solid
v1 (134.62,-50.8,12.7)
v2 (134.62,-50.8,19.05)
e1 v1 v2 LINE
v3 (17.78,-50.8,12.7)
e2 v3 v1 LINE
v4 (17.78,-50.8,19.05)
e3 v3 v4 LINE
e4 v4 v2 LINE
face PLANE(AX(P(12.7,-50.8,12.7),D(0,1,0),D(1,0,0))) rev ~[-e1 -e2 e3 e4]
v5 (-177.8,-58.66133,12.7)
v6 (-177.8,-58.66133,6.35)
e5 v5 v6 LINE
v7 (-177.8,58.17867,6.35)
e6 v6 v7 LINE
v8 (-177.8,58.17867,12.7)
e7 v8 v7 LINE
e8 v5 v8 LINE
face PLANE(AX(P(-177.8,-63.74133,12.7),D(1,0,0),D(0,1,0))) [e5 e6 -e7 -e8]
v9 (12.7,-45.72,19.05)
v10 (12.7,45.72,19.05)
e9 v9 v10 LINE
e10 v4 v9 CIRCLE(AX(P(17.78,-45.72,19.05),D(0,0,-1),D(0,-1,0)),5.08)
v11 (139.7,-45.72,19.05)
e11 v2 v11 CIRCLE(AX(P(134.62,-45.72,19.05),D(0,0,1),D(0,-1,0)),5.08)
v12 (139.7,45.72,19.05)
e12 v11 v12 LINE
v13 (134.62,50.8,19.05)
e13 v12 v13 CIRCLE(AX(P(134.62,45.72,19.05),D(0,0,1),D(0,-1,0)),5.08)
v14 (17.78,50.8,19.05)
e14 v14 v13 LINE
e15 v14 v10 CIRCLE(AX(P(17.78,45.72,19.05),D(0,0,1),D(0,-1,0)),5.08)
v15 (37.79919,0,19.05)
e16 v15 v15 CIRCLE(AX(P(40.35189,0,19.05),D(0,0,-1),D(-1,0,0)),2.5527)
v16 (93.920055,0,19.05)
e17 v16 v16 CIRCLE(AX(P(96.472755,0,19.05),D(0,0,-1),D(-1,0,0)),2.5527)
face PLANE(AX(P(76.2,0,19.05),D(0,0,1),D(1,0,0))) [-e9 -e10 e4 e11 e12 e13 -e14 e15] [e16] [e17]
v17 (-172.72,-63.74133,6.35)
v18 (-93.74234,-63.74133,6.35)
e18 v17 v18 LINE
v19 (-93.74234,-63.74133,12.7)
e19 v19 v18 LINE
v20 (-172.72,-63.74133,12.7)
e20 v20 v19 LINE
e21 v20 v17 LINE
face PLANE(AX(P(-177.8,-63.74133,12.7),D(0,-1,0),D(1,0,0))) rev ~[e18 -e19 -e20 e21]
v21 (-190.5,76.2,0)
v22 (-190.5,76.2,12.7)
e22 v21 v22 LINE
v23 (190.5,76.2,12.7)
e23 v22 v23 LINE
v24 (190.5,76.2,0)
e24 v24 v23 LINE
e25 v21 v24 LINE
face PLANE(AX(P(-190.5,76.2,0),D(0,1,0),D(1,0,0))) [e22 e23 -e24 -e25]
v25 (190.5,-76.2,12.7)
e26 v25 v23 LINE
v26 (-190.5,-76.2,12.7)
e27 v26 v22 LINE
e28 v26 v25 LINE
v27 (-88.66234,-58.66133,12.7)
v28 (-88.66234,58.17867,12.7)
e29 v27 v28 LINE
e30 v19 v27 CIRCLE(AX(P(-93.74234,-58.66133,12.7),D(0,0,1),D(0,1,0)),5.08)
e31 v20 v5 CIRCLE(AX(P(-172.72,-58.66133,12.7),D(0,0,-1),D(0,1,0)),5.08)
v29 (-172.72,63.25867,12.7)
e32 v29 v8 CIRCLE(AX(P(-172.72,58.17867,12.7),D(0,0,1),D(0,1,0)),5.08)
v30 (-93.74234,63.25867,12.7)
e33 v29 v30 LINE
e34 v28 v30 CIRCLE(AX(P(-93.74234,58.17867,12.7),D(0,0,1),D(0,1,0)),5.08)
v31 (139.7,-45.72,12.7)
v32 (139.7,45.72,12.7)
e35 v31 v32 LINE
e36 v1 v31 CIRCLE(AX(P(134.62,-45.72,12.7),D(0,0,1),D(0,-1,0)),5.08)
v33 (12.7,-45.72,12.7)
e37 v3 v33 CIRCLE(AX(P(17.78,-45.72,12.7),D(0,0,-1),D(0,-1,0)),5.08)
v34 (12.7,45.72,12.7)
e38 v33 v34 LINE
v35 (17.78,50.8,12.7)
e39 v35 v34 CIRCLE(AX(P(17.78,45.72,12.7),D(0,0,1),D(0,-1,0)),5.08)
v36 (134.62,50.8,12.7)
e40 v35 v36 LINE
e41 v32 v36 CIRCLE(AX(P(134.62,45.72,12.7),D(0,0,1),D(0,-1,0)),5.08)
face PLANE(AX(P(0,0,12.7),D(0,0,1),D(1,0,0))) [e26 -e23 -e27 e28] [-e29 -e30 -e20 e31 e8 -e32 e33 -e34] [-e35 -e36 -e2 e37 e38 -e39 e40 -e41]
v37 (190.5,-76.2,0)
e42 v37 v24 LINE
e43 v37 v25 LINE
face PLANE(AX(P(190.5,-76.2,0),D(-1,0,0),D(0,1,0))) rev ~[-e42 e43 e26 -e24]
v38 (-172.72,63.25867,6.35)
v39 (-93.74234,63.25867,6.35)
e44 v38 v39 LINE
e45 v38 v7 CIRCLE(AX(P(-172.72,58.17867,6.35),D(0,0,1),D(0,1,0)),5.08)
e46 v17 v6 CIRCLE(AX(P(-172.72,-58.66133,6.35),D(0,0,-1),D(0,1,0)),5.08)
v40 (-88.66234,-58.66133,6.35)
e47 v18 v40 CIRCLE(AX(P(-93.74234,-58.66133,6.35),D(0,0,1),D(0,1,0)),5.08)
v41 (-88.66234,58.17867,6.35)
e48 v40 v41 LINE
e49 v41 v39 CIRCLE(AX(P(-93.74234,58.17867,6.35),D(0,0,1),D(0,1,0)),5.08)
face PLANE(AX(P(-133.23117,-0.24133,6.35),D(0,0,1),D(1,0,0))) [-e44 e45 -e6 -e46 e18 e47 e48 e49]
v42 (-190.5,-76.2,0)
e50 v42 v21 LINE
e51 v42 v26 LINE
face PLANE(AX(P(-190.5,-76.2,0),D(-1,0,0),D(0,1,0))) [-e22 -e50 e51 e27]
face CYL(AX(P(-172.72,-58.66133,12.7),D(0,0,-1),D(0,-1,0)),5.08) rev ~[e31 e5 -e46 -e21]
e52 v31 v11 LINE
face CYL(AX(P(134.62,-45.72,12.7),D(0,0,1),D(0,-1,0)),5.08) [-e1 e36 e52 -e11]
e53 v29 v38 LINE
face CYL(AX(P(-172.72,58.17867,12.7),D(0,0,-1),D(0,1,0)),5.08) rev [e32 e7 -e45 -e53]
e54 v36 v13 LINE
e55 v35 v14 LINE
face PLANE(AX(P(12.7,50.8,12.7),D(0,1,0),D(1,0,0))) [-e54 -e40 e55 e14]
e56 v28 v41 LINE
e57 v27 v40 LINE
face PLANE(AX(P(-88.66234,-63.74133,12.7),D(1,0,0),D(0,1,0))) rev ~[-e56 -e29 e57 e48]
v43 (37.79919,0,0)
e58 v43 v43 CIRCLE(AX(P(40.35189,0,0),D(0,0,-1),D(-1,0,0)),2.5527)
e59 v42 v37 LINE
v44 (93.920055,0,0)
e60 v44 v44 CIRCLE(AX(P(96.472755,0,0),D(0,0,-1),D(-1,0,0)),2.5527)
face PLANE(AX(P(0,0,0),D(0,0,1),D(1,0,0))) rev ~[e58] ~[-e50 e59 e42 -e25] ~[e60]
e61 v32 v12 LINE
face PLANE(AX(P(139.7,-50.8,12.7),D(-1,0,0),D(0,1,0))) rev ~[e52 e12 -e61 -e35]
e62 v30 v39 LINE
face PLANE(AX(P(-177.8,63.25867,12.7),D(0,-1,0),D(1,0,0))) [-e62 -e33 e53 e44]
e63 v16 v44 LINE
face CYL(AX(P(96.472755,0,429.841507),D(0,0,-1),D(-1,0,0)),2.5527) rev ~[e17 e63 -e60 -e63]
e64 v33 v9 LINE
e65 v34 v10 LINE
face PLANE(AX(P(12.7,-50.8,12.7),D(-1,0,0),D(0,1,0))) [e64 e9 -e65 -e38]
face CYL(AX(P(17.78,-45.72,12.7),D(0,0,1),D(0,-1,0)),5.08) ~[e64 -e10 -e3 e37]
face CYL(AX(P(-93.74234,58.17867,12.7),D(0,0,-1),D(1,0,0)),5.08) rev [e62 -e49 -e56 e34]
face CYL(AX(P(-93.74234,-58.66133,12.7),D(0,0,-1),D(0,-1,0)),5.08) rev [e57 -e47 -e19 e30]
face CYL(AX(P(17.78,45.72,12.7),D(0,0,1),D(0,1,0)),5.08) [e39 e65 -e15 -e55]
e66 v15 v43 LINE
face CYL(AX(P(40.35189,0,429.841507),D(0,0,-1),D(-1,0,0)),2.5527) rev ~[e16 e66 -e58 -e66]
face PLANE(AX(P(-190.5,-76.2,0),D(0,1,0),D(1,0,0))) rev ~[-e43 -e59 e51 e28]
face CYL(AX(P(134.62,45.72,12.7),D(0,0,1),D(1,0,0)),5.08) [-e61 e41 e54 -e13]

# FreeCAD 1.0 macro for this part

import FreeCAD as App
import Part
import Sketcher

V = App.Vector
Q = App.Units.Quantity


def edges_at(feature, points):
    """Names of the edges that pass closest to the given points."""
    edges = feature.Shape.Edges
    near = lambda p: min(range(len(edges)), key=lambda i: edges[i].distToShape(Part.Vertex(*p))[0])
    return sorted({f"Edge{near(p) + 1}" for p in points})

doc = App.newDocument("Part")
body = doc.addObject("PartDesign::Body", "Body")

# Sketch on XY plane
sketch1 = body.newObject("Sketcher::SketchObject", "Sketch")
sketch1.AttachmentSupport = (doc.getObject("XY_Plane"), [""])
sketch1.MapMode = "FlatFace"
sketch1.addGeometry(Part.LineSegment(V(-190, 76, 0), V(-190, -76, 0)), False)
sketch1.addGeometry(Part.LineSegment(V(-190, -76, 0), V(190, -76, 0)), False)
sketch1.addGeometry(Part.LineSegment(V(190, -76, 0), V(190, 76, 0)), False)
sketch1.addGeometry(Part.LineSegment(V(190, 76, 0), V(-190, 76, 0)), False)
sketch1.addConstraint(Sketcher.Constraint("Coincident", 0, 2, 1, 1))
sketch1.addConstraint(Sketcher.Constraint("Coincident", 1, 2, 2, 1))
sketch1.addConstraint(Sketcher.Constraint("Coincident", 2, 2, 3, 1))
sketch1.addConstraint(Sketcher.Constraint("Coincident", 3, 2, 0, 1))
sketch1.addConstraint(Sketcher.Constraint("Vertical", 0))
sketch1.addConstraint(Sketcher.Constraint("Horizontal", 1))
sketch1.addConstraint(Sketcher.Constraint("Vertical", 2))
sketch1.addConstraint(Sketcher.Constraint("Horizontal", 3))
sketch1.addConstraint(Sketcher.Constraint("Symmetric", 0, 2, 2, 2, -1, 1))
sketch1.addConstraint(Sketcher.Constraint("DistanceX", 1, 1, 1, 2, Q("15 in")))
sketch1.addConstraint(Sketcher.Constraint("DistanceY", 0, 2, 0, 1, Q("6 in")))
pad1 = body.newObject("PartDesign::Pad", "Pad")
pad1.Profile = sketch1
pad1.Length = Q("0.5 in")

# Sketch on XY plane
sketch2 = body.newObject("Sketcher::SketchObject", "Sketch001")
sketch2.AttachmentSupport = (doc.getObject("XY_Plane"), [""])
sketch2.MapMode = "FlatFace"
sketch2.AttachmentOffset = App.Placement(V(0, 0, 0.5 * 25.4), App.Rotation())
sketch2.addGeometry(Part.LineSegment(V(-178, 63, 0), V(-178, -64, 0)), False)
sketch2.addGeometry(Part.LineSegment(V(-178, -64, 0), V(-89, -64, 0)), False)
sketch2.addGeometry(Part.LineSegment(V(-89, -64, 0), V(-89, 63, 0)), False)
sketch2.addGeometry(Part.LineSegment(V(-89, 63, 0), V(-178, 63, 0)), False)
sketch2.addConstraint(Sketcher.Constraint("Coincident", 0, 2, 1, 1))
sketch2.addConstraint(Sketcher.Constraint("Coincident", 1, 2, 2, 1))
sketch2.addConstraint(Sketcher.Constraint("Coincident", 2, 2, 3, 1))
sketch2.addConstraint(Sketcher.Constraint("Coincident", 3, 2, 0, 1))
sketch2.addConstraint(Sketcher.Constraint("Vertical", 0))
sketch2.addConstraint(Sketcher.Constraint("Horizontal", 1))
sketch2.addConstraint(Sketcher.Constraint("Vertical", 2))
sketch2.addConstraint(Sketcher.Constraint("Horizontal", 3))
sketch2.addConstraint(Sketcher.Constraint("DistanceY", 0, 2, 0, 1, Q("5 in")))
sketch2.addConstraint(Sketcher.Constraint("DistanceX", 0, 2, -1, 1, Q("7 in")))
sketch2.addConstraint(Sketcher.Constraint("DistanceX", 1, 1, 1, 2, Q("89.13766 mm")))
sketch2.addConstraint(Sketcher.Constraint("DistanceY", 0, 2, -1, 1, Q("63.74133 mm")))
pocket1 = body.newObject("PartDesign::Pocket", "Pocket")
pocket1.Profile = sketch2
pocket1.Length = Q("0.25 in")
doc.recompute()

fillet = body.newObject("PartDesign::Fillet", "Fillet")
fillet.Base = (pocket1, edges_at(pocket1, [
    (-177.8, 63.259, 9.525),
    (-177.8, -63.741, 9.525),
    (-88.662, 63.259, 9.525),
    (-88.662, -63.741, 9.525),
]))
fillet.Radius = Q("0.2 in")

# Sketch on XY plane
sketch3 = body.newObject("Sketcher::SketchObject", "Sketch002")
sketch3.AttachmentSupport = (doc.getObject("XY_Plane"), [""])
sketch3.MapMode = "FlatFace"
sketch3.AttachmentOffset = App.Placement(V(0, 0, 0.5 * 25.4), App.Rotation())
sketch3.addGeometry(Part.LineSegment(V(13, 51, 0), V(13, -51, 0)), False)
sketch3.addGeometry(Part.LineSegment(V(13, -51, 0), V(140, -51, 0)), False)
sketch3.addGeometry(Part.LineSegment(V(140, -51, 0), V(140, 51, 0)), False)
sketch3.addGeometry(Part.LineSegment(V(140, 51, 0), V(13, 51, 0)), False)
sketch3.addConstraint(Sketcher.Constraint("Coincident", 0, 2, 1, 1))
sketch3.addConstraint(Sketcher.Constraint("Coincident", 1, 2, 2, 1))
sketch3.addConstraint(Sketcher.Constraint("Coincident", 2, 2, 3, 1))
sketch3.addConstraint(Sketcher.Constraint("Coincident", 3, 2, 0, 1))
sketch3.addConstraint(Sketcher.Constraint("Vertical", 0))
sketch3.addConstraint(Sketcher.Constraint("Horizontal", 1))
sketch3.addConstraint(Sketcher.Constraint("Vertical", 2))
sketch3.addConstraint(Sketcher.Constraint("Horizontal", 3))
sketch3.addConstraint(Sketcher.Constraint("DistanceX", 1, 1, 1, 2, Q("5 in")))
sketch3.addConstraint(Sketcher.Constraint("DistanceY", 0, 2, 0, 1, Q("4 in")))
sketch3.addConstraint(Sketcher.Constraint("DistanceY", 0, 2, -1, 1, Q("2 in")))
sketch3.addConstraint(Sketcher.Constraint("DistanceX", -1, 1, 0, 2, Q("0.5 in")))
pad2 = body.newObject("PartDesign::Pad", "Pad001")
pad2.Profile = sketch3
pad2.Length = Q("0.25 in")
doc.recompute()

fillet2 = body.newObject("PartDesign::Fillet", "Fillet001")
fillet2.Base = (pad2, edges_at(pad2, [
    (12.7, -50.8, 15.875),
    (139.7, -50.8, 15.875),
    (139.7, 50.8, 15.875),
    (12.7, 50.8, 15.875),
]))
fillet2.Radius = Q("0.2 in")

# Sketch on XY plane
sketch4 = body.newObject("Sketcher::SketchObject", "Sketch003")
sketch4.AttachmentSupport = (doc.getObject("XY_Plane"), [""])
sketch4.MapMode = "FlatFace"
sketch4.AttachmentOffset = App.Placement(V(0, 0, 0.75 * 25.4), App.Rotation())
sketch4.addGeometry(Part.Circle(V(40.4, 0, 0), V(0, 0, 1), 2.6), False)
sketch4.addGeometry(Part.Circle(V(96.5, 0, 0), V(0, 0, 1), 2.6), False)
sketch4.addConstraint(Sketcher.Constraint("Equal", 0, 1))
sketch4.addConstraint(Sketcher.Constraint("PointOnObject", 0, 3, -1))
sketch4.addConstraint(Sketcher.Constraint("PointOnObject", 1, 3, -1))
sketch4.addConstraint(Sketcher.Constraint("Diameter", 0, Q("0.201 in")))
sketch4.addConstraint(Sketcher.Constraint("DistanceX", -1, 1, 0, 3, Q("40.35189 mm")))
sketch4.addConstraint(Sketcher.Constraint("DistanceX", -1, 1, 1, 3, Q("96.472755 mm")))
doc.recompute()
hole = body.newObject("PartDesign::Hole", "Hole")
hole.Profile = sketch4
hole.ThreadType = "None"
hole.Diameter = Q("0.201 in")
hole.DepthType = "ThroughAll"

doc.recompute()
